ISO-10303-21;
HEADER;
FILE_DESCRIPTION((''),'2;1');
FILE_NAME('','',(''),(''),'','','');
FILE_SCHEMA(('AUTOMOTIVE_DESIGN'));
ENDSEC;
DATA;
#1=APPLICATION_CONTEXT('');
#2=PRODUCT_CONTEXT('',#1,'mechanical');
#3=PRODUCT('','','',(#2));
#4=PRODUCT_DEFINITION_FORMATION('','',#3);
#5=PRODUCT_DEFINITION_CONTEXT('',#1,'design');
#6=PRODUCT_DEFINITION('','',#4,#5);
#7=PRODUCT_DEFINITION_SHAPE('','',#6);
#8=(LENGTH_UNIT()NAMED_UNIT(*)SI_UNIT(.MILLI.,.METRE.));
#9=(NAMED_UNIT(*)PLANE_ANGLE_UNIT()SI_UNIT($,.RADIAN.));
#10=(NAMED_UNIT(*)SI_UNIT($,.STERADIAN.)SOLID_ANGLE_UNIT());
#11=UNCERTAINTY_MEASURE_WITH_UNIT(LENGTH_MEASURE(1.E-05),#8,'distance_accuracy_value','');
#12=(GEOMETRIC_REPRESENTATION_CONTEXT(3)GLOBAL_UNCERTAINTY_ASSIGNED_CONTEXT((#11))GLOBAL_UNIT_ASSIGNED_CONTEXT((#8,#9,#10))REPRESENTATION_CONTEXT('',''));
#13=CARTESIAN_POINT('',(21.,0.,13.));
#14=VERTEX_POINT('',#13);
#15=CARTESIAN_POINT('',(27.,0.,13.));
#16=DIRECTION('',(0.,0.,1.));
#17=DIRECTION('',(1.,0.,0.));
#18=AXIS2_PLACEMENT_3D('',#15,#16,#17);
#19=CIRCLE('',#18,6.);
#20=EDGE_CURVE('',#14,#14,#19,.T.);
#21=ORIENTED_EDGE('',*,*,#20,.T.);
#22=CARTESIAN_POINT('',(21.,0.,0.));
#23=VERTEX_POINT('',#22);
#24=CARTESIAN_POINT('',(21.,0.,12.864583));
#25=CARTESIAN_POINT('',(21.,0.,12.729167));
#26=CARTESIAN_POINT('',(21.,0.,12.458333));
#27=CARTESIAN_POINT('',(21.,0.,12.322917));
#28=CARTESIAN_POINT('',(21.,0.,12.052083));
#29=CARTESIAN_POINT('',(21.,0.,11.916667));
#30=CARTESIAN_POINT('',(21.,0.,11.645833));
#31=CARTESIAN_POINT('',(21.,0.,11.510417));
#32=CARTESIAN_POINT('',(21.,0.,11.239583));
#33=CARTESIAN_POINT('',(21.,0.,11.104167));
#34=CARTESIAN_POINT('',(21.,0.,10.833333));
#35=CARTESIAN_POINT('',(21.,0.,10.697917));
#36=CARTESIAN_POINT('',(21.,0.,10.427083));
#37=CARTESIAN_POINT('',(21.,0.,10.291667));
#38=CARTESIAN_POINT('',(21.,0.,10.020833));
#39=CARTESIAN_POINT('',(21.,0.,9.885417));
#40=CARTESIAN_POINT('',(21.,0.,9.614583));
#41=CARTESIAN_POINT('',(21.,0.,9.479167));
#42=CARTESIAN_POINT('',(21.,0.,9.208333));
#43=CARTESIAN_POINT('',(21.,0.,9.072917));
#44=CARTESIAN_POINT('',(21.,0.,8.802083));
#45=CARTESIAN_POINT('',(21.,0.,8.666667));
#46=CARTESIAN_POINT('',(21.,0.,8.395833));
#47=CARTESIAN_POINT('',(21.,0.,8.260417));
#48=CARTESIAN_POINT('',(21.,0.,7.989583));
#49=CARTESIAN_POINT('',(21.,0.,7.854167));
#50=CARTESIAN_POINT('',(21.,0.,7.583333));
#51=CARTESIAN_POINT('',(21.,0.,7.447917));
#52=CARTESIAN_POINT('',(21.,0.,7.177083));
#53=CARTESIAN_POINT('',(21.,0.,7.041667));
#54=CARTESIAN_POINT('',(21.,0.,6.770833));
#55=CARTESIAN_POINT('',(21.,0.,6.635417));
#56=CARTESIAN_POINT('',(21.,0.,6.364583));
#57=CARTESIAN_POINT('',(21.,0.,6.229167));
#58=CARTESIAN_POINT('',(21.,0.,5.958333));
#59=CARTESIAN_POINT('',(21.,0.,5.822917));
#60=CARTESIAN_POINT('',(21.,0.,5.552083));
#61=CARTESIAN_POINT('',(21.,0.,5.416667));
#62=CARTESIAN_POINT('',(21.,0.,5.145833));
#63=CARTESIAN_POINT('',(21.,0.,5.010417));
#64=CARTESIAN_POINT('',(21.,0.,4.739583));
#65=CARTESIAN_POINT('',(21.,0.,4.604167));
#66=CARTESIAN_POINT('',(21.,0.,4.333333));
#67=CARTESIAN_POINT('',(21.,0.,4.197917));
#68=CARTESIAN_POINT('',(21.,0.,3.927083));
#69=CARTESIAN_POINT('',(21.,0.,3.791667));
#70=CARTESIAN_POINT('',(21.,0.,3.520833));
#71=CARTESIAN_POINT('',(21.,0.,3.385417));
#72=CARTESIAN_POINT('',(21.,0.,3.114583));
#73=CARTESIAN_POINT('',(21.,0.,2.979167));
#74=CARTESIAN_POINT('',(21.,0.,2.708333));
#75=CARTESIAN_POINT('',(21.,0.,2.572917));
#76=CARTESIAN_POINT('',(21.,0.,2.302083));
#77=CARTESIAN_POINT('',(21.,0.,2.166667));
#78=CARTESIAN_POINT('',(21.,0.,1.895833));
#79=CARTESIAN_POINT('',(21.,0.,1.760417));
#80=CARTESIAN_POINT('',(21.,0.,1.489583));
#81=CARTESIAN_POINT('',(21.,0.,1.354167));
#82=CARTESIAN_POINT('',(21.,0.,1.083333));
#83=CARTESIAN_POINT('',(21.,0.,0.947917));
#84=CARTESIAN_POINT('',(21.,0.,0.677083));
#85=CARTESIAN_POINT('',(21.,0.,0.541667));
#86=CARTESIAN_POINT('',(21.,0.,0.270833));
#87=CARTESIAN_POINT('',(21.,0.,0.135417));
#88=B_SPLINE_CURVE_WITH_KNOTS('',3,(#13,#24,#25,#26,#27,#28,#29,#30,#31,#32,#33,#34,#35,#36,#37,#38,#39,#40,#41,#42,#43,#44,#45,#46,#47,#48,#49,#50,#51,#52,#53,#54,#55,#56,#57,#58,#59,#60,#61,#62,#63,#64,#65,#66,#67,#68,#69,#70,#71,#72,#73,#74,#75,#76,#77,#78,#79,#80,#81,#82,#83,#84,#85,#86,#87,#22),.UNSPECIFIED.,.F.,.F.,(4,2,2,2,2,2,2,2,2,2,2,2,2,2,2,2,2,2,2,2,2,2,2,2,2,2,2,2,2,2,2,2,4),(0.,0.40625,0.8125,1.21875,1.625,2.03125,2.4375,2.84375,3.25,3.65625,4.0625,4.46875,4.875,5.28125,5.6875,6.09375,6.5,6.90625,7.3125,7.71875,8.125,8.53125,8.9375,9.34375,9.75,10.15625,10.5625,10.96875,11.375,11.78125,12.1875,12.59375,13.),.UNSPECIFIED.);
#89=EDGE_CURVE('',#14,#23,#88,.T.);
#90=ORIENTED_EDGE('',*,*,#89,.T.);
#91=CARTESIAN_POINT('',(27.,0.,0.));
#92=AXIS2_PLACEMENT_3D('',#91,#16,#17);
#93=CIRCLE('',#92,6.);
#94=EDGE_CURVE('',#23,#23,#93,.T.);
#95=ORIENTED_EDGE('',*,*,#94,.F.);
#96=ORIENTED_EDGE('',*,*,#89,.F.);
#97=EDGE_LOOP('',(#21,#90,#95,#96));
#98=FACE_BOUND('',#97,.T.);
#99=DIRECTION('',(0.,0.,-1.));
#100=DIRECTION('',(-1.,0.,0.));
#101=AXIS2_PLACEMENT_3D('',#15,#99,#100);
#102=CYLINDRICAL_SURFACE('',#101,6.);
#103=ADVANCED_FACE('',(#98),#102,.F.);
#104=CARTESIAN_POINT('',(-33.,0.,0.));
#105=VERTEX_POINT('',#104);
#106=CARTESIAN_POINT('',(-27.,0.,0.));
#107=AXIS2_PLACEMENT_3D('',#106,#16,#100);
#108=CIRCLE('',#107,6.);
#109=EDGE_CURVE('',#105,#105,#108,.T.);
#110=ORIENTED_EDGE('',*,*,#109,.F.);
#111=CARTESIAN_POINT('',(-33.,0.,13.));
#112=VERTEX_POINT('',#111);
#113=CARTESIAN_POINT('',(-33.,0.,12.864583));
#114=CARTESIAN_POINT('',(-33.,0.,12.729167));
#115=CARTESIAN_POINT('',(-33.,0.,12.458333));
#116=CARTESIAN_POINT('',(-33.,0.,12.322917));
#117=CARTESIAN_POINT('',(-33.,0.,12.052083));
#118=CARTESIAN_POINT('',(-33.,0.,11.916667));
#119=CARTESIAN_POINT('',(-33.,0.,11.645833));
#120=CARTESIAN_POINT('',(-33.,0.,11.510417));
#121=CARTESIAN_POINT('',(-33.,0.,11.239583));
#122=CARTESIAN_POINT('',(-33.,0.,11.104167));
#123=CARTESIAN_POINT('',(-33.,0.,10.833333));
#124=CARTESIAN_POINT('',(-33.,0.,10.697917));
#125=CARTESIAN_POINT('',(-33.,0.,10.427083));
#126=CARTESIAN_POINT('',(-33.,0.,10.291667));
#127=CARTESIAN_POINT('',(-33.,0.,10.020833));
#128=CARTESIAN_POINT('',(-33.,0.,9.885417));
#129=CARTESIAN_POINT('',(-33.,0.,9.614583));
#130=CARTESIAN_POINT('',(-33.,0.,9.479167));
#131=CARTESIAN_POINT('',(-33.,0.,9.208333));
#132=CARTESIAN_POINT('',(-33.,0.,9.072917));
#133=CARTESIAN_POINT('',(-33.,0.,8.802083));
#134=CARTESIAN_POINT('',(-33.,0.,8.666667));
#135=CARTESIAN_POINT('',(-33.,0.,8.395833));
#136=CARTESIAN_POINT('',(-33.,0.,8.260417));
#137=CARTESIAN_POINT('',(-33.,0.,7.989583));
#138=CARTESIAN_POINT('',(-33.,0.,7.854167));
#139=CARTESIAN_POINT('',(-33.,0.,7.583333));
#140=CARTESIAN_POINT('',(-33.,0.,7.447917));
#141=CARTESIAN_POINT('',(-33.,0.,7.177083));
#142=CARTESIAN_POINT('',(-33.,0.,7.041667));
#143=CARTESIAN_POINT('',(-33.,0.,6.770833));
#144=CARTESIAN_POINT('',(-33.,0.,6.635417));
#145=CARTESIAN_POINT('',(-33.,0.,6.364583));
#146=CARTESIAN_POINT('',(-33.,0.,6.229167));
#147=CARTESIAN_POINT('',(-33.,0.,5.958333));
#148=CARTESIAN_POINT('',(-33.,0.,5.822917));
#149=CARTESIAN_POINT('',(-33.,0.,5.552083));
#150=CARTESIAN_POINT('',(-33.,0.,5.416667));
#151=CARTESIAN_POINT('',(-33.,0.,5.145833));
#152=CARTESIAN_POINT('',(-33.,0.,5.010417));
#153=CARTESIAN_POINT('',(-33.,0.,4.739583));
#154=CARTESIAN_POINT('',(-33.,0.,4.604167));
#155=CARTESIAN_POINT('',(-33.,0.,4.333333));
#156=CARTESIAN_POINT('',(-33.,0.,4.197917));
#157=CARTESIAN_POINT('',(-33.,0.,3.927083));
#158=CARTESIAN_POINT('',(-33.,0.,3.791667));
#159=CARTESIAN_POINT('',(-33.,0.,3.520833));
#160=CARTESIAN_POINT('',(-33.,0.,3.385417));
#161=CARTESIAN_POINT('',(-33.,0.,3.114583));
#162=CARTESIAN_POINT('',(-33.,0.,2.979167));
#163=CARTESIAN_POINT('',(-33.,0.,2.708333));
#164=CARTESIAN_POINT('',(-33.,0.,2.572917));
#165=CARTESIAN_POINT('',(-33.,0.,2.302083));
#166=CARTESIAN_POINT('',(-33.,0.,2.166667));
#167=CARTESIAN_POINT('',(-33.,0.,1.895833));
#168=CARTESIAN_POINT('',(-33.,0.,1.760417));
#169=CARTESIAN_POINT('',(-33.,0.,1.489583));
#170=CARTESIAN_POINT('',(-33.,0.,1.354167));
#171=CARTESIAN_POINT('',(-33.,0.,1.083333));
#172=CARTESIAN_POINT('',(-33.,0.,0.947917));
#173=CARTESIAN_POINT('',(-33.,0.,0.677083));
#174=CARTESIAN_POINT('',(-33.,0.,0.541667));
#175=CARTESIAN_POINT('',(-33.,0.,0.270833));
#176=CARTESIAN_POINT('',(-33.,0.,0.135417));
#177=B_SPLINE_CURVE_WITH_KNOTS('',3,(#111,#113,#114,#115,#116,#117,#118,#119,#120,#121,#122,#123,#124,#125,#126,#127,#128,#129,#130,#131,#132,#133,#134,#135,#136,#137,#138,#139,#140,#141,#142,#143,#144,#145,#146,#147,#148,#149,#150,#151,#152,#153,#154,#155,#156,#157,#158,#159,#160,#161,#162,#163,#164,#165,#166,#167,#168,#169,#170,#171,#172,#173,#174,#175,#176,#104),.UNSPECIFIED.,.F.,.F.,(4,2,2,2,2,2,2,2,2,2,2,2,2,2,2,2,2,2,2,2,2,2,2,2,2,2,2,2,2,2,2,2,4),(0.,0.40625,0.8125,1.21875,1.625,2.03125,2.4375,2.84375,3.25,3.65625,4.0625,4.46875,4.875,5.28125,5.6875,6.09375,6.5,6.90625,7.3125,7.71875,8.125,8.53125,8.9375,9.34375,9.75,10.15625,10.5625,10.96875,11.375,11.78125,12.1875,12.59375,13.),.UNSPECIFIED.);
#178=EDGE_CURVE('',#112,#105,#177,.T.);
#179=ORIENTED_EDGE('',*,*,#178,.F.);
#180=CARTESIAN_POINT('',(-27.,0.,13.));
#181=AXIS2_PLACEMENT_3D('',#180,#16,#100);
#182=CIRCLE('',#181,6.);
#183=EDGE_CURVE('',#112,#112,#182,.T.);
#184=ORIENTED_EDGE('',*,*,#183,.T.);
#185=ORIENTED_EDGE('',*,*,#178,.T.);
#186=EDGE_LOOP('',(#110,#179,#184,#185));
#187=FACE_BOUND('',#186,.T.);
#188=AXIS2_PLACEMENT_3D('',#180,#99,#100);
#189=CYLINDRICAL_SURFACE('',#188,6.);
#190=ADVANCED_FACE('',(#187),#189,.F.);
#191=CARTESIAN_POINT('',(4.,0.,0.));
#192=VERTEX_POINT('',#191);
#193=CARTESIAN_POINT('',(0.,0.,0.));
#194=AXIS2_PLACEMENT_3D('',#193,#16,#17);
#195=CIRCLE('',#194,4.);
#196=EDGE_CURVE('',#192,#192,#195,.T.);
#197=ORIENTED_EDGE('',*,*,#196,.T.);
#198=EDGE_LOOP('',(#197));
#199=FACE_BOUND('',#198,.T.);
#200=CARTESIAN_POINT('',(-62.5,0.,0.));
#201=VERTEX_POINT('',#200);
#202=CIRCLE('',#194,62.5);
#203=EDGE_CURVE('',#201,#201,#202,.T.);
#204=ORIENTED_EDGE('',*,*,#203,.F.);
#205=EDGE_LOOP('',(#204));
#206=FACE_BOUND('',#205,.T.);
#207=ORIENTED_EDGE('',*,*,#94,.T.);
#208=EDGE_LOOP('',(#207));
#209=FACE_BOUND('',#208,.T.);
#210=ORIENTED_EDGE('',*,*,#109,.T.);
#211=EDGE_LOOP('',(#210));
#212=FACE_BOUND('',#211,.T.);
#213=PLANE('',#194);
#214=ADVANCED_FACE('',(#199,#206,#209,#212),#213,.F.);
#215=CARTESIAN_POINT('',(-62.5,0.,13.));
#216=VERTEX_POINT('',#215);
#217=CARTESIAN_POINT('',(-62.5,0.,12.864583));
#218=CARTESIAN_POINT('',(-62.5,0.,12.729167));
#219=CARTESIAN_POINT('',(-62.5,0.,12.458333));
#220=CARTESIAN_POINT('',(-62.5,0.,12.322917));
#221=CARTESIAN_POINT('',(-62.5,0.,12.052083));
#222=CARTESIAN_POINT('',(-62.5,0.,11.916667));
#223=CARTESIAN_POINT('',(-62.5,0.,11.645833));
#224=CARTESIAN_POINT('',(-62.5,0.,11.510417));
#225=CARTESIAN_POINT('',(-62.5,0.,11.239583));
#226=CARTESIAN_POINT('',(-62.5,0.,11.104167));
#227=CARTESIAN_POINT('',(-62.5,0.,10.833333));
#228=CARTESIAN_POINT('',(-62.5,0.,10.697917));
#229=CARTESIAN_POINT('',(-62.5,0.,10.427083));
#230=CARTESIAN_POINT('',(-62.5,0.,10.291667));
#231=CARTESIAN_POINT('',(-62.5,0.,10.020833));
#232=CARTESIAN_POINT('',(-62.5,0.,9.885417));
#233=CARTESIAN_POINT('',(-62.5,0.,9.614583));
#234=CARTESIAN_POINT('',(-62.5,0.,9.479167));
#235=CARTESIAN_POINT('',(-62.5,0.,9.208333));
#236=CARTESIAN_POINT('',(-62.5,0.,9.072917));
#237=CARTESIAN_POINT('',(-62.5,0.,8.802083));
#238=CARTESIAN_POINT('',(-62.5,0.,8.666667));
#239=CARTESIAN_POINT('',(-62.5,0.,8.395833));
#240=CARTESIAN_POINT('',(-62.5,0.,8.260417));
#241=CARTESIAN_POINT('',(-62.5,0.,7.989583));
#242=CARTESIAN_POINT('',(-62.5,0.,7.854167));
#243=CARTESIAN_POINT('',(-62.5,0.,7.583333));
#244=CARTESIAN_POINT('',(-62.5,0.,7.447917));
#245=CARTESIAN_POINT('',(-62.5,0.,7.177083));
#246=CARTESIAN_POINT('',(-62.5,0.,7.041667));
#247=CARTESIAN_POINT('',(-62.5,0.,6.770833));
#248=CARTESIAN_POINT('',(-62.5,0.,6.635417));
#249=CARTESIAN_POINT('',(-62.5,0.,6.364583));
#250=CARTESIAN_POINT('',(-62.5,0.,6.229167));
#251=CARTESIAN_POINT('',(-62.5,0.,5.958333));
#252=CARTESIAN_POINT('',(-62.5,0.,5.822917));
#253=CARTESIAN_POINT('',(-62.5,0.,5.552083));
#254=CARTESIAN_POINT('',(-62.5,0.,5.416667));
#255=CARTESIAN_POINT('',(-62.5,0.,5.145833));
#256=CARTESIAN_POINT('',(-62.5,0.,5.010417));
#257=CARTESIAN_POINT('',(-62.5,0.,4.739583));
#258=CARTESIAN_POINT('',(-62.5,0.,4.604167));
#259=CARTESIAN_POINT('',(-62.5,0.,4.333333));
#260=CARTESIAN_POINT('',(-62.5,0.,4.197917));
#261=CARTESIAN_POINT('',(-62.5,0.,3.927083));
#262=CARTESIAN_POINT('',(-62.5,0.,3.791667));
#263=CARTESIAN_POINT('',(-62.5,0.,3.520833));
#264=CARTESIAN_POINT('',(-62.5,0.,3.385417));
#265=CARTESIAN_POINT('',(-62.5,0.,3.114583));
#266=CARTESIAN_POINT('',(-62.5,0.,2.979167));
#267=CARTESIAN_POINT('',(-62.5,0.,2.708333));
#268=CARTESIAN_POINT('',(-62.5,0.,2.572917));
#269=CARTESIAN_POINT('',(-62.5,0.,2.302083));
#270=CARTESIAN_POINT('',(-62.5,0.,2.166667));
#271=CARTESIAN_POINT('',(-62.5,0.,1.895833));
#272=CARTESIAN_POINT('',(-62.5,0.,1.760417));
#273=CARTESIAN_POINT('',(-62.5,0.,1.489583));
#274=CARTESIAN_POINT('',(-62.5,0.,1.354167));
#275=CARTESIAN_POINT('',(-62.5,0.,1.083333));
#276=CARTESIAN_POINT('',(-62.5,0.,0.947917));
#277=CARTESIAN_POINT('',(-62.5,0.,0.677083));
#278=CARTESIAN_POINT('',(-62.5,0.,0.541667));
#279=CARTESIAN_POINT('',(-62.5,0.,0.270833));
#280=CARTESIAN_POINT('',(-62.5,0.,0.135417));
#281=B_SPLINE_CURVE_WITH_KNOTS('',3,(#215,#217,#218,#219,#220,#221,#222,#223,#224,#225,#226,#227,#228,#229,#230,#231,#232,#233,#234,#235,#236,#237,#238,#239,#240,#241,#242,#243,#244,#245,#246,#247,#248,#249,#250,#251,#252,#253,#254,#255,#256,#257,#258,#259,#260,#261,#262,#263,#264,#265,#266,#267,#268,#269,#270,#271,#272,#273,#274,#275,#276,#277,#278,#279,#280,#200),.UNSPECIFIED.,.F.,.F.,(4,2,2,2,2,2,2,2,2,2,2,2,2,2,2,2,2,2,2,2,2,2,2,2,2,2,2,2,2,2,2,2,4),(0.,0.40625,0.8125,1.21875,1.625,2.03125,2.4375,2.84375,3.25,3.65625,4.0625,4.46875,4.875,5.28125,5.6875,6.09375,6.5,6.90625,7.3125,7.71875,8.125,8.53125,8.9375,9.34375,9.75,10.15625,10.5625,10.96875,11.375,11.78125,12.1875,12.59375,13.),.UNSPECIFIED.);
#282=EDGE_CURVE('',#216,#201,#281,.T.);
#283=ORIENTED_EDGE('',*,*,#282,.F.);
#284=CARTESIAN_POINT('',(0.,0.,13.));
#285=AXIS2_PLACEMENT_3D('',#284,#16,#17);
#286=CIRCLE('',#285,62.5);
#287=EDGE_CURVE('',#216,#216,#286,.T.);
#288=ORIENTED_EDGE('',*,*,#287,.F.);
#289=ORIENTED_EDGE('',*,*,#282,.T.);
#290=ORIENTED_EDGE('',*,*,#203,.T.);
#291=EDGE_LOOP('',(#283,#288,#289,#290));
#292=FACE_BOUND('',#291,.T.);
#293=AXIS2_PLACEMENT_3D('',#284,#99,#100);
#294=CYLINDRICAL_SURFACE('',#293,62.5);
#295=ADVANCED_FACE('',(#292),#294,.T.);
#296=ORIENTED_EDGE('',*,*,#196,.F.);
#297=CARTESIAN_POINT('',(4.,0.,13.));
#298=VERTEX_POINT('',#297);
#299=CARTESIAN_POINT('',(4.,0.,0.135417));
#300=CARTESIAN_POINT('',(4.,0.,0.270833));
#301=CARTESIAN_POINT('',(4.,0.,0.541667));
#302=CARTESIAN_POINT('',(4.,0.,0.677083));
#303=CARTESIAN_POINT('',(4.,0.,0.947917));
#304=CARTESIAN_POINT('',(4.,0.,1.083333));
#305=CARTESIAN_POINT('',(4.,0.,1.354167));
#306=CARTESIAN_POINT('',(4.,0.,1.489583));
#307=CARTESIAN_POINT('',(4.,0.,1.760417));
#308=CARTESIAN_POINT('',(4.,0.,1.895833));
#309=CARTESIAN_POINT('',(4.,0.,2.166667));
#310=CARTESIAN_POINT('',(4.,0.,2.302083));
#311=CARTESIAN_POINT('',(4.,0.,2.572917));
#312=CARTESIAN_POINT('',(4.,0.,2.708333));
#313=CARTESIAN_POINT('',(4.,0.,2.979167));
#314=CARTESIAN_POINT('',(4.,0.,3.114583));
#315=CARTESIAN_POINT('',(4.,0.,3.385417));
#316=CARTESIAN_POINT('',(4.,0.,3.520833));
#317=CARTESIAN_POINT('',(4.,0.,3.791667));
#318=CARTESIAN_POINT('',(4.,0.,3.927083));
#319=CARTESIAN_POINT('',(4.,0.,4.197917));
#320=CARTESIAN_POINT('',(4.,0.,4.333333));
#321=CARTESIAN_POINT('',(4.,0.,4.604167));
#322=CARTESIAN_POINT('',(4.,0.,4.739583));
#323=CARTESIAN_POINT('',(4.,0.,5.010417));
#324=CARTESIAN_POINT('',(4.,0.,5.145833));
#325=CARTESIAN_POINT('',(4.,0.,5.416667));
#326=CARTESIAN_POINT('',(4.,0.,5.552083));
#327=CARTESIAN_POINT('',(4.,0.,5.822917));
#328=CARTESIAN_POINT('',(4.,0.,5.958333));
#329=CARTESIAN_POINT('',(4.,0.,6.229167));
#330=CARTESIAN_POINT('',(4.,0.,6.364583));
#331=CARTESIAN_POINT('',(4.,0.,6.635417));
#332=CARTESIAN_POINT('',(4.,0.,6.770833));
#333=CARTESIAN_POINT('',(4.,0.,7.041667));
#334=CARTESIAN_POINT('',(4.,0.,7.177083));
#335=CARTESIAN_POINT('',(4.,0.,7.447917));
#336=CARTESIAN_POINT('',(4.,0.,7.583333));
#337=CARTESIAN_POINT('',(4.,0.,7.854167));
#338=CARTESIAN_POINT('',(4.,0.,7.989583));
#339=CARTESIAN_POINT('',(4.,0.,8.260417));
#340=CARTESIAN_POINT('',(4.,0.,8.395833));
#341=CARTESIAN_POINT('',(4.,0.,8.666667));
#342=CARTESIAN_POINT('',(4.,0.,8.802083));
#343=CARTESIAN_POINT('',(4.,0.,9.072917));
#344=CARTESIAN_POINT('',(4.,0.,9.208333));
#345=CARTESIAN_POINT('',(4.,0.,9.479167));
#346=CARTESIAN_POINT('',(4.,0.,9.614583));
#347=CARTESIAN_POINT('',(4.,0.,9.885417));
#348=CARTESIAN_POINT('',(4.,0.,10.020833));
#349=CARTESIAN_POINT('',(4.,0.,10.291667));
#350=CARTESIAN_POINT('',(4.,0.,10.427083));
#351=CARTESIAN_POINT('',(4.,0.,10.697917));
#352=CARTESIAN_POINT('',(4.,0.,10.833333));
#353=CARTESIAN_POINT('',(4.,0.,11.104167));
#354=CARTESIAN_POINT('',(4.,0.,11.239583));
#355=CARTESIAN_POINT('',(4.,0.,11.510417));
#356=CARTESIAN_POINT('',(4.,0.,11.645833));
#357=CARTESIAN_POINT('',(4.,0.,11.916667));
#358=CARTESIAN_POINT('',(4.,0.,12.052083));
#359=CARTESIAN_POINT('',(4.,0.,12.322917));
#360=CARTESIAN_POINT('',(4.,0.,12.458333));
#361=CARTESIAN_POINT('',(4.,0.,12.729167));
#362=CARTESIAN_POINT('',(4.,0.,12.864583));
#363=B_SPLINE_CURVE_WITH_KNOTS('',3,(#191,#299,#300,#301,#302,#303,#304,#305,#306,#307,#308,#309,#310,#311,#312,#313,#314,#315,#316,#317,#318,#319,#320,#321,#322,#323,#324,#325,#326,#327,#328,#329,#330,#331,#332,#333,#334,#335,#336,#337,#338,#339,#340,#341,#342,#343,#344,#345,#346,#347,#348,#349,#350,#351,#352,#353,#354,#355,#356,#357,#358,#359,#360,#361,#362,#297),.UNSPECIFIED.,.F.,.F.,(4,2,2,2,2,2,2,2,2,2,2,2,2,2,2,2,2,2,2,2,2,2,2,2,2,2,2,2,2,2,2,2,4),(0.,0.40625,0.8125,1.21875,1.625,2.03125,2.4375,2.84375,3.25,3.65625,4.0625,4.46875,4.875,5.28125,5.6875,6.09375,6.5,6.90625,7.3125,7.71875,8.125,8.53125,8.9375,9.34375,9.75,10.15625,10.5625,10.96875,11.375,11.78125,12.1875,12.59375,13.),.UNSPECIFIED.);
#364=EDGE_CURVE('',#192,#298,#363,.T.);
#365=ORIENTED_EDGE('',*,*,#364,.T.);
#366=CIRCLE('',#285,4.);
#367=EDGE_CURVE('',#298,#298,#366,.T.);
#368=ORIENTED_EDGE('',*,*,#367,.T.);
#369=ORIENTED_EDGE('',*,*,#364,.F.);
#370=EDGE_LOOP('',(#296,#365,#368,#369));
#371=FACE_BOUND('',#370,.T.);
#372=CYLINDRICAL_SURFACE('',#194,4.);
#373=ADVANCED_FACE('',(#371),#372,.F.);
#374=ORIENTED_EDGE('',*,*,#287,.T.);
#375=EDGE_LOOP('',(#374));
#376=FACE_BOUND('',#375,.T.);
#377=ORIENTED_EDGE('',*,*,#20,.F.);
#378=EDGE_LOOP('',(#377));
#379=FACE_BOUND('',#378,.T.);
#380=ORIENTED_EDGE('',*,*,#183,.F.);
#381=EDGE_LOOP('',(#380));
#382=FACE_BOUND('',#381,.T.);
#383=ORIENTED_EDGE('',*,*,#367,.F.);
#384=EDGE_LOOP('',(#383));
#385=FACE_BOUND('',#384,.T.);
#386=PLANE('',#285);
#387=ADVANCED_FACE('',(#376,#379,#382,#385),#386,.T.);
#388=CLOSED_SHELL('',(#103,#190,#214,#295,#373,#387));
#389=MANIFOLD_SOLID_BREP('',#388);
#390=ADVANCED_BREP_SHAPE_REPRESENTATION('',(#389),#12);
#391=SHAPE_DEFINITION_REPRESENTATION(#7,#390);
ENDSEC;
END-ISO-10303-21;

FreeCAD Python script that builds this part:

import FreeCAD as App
import Part
import Sketcher
from FreeCAD import Vector

doc = App.newDocument("Part")
body = doc.addObject("PartDesign::Body", "Body")

sketch1 = body.newObject("Sketcher::SketchObject", "Sketch")
sketch1.AttachmentSupport = (doc.getObject("XY_Plane"), [""])
sketch1.MapMode = "FlatFace"
sketch1.addGeometry(Part.Circle(Vector(0, 0, 0), Vector(0, 0, 1), 62), False)
sketch1.addGeometry(Part.Circle(Vector(27, 0, 0), Vector(0, 0, 1), 6), False)
sketch1.addGeometry(Part.Circle(Vector(-27, 0, 0), Vector(0, 0, 1), 6), False)
sketch1.addConstraint(Sketcher.Constraint("Coincident", 0, 3, -1, 1))
sketch1.addConstraint(Sketcher.Constraint("Equal", 1, 2))
sketch1.addConstraint(Sketcher.Constraint("Symmetric", 1, 3, 2, 3, -1, 1))
sketch1.addConstraint(Sketcher.Constraint("PointOnObject", 1, 3, -1))
sketch1.addConstraint(Sketcher.Constraint("Diameter", 0, 125.0))
sketch1.addConstraint(Sketcher.Constraint("Diameter", 1, 12.0))
sketch1.addConstraint(Sketcher.Constraint("DistanceX", -1, 1, 1, 3, 27.0))
pad1 = body.newObject("PartDesign::Pad", "Pad")
pad1.Profile = sketch1
pad1.Length = 13

sketch2 = body.newObject("Sketcher::SketchObject", "Sketch001")
sketch2.AttachmentSupport = (doc.getObject("XY_Plane"), [""])
sketch2.MapMode = "FlatFace"
sketch2.AttachmentOffset = App.Placement(Vector(0, 0, 13), App.Rotation())
sketch2.addGeometry(Part.Circle(Vector(0, 0, 0), Vector(0, 0, 1), 4), False)
sketch2.addConstraint(Sketcher.Constraint("Coincident", 0, 3, -1, 1))
sketch2.addConstraint(Sketcher.Constraint("Diameter", 0, 8.0))
pocket1 = body.newObject("PartDesign::Pocket", "Pocket")
pocket1.Profile = sketch2
pocket1.Length = 13

doc.recompute()
